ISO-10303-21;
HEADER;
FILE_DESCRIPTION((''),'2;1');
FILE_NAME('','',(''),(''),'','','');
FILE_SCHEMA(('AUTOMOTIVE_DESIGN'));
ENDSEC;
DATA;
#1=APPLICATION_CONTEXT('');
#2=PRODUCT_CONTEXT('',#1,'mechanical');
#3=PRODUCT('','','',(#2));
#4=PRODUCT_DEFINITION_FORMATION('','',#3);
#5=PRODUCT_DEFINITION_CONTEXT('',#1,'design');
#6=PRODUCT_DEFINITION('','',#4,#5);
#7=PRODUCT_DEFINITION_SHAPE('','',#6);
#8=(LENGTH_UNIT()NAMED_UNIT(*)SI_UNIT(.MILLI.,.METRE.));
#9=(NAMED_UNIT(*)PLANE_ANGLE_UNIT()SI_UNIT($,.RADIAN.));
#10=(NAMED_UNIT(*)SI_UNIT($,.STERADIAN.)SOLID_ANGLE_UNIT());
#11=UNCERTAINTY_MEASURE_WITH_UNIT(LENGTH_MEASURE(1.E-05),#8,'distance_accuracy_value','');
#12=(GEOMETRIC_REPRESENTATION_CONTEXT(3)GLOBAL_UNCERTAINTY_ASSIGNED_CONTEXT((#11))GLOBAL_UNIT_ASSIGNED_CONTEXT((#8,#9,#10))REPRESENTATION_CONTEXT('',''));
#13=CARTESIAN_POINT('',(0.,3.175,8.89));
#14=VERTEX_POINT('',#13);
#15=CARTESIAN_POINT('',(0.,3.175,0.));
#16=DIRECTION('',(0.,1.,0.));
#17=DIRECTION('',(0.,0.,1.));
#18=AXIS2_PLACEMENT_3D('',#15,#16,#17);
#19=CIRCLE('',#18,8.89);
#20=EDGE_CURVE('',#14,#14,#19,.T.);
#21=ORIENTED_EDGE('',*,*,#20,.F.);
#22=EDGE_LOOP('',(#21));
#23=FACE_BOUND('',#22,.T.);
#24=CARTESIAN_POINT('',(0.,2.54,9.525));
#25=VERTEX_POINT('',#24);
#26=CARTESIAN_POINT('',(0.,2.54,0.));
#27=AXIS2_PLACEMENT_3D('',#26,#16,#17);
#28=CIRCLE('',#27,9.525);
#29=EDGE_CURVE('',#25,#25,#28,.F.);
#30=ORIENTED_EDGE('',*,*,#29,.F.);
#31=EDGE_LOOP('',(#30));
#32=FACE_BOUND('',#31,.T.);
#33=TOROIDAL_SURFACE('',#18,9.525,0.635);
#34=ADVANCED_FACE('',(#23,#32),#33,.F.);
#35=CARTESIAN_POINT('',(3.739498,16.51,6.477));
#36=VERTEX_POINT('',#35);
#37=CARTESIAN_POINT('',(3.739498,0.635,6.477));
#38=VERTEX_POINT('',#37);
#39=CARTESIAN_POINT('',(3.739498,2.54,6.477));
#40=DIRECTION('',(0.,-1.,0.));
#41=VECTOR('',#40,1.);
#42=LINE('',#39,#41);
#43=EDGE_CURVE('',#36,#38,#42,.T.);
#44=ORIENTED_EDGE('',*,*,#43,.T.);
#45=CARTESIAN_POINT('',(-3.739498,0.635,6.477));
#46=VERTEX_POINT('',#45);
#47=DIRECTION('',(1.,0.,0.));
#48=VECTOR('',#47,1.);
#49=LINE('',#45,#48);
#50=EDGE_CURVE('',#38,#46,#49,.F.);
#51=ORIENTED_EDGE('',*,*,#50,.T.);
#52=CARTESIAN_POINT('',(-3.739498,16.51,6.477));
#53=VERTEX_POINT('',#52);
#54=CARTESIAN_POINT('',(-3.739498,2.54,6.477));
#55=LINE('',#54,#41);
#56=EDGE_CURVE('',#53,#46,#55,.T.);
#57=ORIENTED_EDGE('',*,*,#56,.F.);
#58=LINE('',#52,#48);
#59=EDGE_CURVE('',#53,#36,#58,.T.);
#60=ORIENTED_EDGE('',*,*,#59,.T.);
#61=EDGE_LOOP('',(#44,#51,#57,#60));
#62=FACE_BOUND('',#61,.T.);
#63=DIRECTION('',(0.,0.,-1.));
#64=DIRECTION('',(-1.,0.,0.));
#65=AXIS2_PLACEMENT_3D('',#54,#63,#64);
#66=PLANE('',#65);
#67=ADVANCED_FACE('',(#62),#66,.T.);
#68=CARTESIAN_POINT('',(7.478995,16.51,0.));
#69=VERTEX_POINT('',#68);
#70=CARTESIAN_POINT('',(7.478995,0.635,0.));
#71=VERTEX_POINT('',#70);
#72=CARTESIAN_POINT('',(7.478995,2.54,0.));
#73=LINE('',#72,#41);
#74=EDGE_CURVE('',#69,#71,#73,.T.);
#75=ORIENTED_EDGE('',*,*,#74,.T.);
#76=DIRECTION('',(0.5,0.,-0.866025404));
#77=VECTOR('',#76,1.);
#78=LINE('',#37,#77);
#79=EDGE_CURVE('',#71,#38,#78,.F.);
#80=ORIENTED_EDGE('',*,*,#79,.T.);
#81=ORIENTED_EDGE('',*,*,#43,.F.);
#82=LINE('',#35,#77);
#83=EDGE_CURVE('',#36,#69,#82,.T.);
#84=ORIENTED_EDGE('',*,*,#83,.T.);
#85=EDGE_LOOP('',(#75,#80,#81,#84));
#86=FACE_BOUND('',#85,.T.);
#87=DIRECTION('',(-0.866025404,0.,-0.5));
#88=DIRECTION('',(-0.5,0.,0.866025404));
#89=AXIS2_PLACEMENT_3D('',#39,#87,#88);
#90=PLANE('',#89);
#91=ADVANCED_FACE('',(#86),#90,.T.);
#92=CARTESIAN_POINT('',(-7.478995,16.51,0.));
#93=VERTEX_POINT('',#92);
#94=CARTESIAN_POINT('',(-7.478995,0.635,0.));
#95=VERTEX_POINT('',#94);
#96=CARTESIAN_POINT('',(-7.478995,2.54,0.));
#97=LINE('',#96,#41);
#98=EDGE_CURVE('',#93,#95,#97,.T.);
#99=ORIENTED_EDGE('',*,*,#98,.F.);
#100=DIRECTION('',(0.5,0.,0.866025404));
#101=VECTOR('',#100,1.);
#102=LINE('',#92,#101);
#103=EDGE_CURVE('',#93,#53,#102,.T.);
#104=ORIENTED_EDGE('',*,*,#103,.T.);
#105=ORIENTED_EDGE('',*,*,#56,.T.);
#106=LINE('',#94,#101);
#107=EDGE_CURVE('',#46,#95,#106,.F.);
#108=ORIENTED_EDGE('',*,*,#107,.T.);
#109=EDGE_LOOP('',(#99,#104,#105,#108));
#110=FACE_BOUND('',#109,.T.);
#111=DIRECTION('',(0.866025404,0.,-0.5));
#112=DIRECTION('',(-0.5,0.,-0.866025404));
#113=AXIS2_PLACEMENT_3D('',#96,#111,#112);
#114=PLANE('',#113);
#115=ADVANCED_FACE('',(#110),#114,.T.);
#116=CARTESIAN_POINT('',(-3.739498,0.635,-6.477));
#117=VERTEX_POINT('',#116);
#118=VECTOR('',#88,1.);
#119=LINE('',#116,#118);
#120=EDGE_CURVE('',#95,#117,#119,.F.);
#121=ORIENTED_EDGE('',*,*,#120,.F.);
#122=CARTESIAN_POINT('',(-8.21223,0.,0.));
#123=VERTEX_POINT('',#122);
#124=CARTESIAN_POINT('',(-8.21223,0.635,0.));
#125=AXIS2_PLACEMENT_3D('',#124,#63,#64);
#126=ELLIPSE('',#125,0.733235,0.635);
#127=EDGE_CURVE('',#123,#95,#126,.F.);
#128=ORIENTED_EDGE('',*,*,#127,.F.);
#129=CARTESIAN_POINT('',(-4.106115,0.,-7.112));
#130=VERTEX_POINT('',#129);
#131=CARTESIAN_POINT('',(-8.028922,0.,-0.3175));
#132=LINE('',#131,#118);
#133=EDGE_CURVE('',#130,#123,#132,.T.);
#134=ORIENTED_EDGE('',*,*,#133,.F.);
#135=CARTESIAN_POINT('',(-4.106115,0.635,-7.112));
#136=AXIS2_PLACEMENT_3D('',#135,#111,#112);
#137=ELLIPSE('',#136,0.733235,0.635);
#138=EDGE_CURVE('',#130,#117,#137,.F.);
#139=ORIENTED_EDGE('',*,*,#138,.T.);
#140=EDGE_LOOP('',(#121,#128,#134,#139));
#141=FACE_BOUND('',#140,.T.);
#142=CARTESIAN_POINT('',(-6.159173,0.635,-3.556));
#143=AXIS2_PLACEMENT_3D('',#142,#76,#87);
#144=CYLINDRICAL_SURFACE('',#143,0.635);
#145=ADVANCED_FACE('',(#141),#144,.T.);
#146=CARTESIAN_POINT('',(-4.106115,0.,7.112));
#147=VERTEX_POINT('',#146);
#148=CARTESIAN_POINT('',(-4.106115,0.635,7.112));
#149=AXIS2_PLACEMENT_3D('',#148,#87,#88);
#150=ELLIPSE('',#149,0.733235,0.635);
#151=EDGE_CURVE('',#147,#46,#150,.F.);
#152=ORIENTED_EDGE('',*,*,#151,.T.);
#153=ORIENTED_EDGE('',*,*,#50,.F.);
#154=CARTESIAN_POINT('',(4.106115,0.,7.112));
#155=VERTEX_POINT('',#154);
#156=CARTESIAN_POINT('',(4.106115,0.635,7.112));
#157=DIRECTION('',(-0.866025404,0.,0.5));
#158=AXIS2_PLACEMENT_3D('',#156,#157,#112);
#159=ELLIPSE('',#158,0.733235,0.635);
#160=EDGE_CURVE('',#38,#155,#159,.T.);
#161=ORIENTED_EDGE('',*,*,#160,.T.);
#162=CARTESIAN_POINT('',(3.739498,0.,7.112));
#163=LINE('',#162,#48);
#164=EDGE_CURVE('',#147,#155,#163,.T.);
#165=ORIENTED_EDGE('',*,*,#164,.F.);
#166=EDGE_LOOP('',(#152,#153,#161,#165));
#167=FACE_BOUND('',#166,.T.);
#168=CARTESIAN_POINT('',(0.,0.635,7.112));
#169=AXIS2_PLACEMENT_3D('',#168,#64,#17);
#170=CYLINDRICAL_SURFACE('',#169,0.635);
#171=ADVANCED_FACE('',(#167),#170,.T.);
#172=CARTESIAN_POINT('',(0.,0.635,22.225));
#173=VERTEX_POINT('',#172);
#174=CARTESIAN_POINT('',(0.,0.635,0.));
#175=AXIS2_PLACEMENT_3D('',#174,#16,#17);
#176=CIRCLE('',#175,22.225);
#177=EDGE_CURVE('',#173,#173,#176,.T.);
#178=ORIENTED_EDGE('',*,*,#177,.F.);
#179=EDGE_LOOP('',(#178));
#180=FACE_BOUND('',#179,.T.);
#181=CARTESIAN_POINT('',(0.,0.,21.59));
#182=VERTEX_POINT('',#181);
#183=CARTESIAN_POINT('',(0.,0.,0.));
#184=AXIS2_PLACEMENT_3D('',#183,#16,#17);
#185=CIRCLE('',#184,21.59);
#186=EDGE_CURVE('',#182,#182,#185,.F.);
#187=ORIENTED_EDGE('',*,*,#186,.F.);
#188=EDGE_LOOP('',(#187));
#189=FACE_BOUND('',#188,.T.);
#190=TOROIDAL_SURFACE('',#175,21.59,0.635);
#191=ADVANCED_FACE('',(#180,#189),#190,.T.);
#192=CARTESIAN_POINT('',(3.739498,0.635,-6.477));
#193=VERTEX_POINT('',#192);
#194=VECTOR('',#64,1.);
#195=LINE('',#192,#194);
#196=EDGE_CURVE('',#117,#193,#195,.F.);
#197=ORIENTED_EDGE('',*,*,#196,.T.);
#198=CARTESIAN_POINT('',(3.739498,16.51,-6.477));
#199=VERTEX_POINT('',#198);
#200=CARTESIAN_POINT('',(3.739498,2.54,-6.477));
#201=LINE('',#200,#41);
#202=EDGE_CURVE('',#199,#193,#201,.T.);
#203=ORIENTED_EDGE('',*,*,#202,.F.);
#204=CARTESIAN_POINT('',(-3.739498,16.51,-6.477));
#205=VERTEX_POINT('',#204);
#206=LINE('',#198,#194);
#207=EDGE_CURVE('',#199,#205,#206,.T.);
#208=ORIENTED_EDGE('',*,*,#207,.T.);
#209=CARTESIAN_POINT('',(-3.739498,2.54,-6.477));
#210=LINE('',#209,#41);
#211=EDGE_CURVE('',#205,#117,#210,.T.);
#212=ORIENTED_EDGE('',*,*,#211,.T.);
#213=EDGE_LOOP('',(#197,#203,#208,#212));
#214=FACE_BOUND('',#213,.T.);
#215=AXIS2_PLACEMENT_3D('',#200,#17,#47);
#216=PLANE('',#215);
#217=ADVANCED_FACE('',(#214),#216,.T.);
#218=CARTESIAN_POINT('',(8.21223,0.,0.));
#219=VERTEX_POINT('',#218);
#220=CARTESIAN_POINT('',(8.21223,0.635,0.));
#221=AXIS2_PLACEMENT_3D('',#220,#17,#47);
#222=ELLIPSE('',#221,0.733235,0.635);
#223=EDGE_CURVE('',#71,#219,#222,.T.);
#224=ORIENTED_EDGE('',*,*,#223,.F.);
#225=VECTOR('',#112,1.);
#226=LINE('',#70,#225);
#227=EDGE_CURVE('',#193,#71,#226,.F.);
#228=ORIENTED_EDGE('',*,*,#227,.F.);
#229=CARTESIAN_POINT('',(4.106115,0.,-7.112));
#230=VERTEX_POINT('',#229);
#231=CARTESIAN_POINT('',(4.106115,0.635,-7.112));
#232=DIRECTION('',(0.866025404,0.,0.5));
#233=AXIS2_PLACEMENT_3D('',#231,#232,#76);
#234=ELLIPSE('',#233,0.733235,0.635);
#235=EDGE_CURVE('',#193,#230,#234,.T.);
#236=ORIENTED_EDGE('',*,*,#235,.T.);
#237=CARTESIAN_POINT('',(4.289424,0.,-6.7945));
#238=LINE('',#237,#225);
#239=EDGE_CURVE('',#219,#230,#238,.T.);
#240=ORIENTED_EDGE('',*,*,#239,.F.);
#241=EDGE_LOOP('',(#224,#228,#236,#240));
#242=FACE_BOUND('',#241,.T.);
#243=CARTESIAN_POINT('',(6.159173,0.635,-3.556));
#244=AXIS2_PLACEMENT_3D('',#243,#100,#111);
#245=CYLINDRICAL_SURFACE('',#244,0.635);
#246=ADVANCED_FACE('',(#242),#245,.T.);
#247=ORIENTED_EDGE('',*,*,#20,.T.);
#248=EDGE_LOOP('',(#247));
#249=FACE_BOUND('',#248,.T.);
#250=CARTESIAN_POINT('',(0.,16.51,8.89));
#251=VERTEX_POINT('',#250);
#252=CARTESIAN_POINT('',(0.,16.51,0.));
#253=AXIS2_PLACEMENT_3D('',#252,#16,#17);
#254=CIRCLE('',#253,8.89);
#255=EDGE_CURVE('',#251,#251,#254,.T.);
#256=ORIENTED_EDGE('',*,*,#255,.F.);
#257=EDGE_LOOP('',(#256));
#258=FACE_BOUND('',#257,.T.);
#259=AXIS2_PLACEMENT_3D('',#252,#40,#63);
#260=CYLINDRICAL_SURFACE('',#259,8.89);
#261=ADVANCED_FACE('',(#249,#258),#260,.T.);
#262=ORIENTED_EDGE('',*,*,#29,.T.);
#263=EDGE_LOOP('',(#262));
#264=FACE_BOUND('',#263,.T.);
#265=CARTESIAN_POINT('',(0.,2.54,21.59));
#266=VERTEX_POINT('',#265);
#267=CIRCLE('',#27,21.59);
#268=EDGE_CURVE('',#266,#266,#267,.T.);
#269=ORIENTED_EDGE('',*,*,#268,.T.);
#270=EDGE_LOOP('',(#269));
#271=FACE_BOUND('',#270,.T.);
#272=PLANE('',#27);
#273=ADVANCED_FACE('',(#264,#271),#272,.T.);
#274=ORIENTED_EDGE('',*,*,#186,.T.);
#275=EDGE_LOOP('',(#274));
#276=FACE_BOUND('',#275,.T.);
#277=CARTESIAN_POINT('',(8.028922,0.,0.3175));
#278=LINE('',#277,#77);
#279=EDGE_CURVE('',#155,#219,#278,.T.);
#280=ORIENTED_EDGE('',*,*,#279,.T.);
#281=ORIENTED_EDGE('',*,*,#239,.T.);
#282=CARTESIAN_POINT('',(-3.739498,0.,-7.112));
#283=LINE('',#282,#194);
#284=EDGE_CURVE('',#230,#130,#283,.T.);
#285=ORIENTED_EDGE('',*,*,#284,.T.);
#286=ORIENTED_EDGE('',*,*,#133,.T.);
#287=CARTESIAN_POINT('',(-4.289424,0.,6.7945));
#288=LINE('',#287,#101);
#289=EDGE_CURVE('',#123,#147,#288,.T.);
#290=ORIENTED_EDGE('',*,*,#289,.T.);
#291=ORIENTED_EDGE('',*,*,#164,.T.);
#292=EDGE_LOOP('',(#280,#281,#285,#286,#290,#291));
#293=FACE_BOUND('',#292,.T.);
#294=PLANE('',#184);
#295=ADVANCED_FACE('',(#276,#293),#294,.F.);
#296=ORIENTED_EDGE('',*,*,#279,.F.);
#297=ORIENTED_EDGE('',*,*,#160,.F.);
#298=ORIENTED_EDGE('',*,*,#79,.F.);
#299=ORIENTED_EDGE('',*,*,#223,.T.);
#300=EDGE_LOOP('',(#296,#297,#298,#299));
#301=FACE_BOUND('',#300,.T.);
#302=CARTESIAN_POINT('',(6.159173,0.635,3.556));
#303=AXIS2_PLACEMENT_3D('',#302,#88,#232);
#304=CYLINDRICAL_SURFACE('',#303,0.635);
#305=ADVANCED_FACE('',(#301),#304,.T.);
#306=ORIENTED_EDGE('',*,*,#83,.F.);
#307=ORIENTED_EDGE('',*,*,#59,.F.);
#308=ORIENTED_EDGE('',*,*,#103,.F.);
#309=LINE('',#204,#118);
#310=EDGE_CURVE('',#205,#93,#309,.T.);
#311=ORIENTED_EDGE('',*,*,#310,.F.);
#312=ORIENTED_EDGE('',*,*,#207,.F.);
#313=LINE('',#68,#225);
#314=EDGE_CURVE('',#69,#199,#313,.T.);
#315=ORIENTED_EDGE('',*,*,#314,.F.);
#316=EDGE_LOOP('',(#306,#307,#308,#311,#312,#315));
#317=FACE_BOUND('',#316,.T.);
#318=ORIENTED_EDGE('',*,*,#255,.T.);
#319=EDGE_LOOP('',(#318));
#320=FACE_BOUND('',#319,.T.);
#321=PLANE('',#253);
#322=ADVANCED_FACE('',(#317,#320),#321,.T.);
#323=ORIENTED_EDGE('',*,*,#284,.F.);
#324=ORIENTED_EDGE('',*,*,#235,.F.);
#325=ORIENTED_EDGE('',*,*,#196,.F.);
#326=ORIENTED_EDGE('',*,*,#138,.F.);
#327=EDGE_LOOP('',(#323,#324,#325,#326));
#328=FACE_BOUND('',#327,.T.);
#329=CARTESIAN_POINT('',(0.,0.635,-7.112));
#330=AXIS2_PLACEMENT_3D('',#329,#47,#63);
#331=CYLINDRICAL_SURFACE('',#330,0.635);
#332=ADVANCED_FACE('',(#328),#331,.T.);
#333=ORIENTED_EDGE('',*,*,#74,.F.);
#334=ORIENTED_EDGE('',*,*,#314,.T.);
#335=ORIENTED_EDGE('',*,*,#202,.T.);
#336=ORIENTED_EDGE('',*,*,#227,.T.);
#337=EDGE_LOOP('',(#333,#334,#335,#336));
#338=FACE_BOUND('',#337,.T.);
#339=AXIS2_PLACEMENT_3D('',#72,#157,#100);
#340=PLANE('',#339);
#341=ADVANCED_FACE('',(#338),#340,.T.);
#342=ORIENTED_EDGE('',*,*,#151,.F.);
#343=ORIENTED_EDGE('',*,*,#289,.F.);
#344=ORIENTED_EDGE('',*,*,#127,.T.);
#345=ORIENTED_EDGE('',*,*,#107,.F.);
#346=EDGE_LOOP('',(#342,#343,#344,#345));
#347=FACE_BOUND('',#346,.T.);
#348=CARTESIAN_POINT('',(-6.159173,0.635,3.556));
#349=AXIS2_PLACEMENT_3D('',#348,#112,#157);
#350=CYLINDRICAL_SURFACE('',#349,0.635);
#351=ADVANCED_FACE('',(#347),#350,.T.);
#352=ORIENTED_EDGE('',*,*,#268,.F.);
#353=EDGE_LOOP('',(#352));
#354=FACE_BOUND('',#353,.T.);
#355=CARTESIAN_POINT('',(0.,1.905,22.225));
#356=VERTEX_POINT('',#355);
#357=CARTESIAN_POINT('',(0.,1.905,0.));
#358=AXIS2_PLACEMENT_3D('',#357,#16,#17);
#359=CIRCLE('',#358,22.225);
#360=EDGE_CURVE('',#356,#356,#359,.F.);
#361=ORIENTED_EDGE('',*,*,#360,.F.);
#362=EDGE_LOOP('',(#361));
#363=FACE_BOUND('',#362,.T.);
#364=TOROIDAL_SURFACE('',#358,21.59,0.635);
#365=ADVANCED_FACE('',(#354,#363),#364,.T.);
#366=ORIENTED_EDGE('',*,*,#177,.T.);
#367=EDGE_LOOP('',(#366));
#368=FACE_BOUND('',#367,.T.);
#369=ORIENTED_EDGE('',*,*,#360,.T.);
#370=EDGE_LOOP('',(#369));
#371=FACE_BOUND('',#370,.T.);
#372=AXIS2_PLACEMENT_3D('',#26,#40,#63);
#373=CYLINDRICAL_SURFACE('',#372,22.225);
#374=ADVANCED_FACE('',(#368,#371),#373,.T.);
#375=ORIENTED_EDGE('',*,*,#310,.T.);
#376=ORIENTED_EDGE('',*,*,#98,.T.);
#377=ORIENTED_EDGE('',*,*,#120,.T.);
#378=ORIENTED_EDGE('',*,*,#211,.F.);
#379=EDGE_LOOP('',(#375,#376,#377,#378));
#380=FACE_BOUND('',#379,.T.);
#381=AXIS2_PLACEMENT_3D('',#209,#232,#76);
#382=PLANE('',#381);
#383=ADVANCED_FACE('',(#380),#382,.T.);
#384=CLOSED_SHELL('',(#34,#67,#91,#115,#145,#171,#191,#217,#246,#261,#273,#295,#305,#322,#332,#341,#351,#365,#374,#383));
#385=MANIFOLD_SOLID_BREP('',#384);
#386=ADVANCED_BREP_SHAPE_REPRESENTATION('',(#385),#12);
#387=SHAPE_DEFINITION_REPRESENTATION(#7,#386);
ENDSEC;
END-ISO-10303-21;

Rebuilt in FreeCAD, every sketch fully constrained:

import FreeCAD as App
import Part
import Sketcher
Q = App.Units.Quantity


def edges_at(feature, points):
    """Names of the edges that pass closest to the given points."""
    edges = feature.Shape.Edges
    near = lambda p: min(range(len(edges)), key=lambda i: edges[i].distToShape(Part.Vertex(*p))[0])
    return sorted({f"Edge{near(p) + 1}" for p in points})


def add_polygon(sketch, points):
    """Adds a closed chain of lines whose ends are joined by coincident constraints."""
    first, n = sketch.GeometryCount, len(points)
    for a, b in zip(points, points[1:] + points[:1]):
        sketch.addGeometry(Part.LineSegment(App.Vector(*a, 0), App.Vector(*b, 0)), False)
    for i in range(n):
        sketch.addConstraint(Sketcher.Constraint("Coincident", first + i, 2, first + (i + 1) % n, 1))

doc = App.newDocument("Part")
body = doc.addObject("PartDesign::Body", "Body")

# Sketch on XZ plane
sketch1 = body.newObject("Sketcher::SketchObject", "Sketch")
sketch1.AttachmentSupport = (doc.getObject("XZ_Plane"), [""])
sketch1.MapMode = "FlatFace"
sketch1.addGeometry(Part.Circle(App.Vector(0, 0, 0), App.Vector(0, 0, 1), 22), False)  # 0
add_polygon(sketch1, [(4, -6), (7, 0), (4, 6), (-4, 6), (-7, 0), (-4, -6)])  # lines 1-6
sketch1.addConstraint([
    Sketcher.Constraint("Horizontal", 3),
    Sketcher.Constraint("Horizontal", 6),
    Sketcher.Constraint("Coincident", 0, 3, -1, 1),
    Sketcher.Constraint("Symmetric", 1, 2, 4, 2, -1, 1),
    Sketcher.Constraint("Symmetric", 2, 2, 5, 2, -1, 1),
    Sketcher.Constraint("PointOnObject", 1, 2, -1),
    Sketcher.Constraint("Parallel", 1, 4),
    Sketcher.Constraint("Vertical", 3, 2, 5, 2),
    Sketcher.Constraint("Diameter", 0, Q("1.75 in")),
    Sketcher.Constraint("Angle", 1, Q("60 deg")),
    Sketcher.Constraint("DistanceY", 5, 2, 3, 2, Q("0.51 in")),
    Sketcher.Constraint("DistanceX", 3, 2, 3, 1, 7.478995),
])
pad1 = body.newObject("PartDesign::Pad", "Pad")
pad1.Profile = sketch1
pad1.Length = Q("0.1 in")
pad1.Reversed = True

# Sketch on XZ plane
sketch2 = body.newObject("Sketcher::SketchObject", "Sketch001")
sketch2.AttachmentSupport = (doc.getObject("XZ_Plane"), [""])
sketch2.MapMode = "FlatFace"
sketch2.AttachmentOffset = App.Placement(App.Vector(0, 0, -0.1 * 25.4), App.Rotation())
sketch2.addGeometry(Part.Circle(App.Vector(0, 0, 0), App.Vector(0, 0, 1), 9), False)  # 0
add_polygon(sketch2, [(-4, -6), (4, -6), (7, 0), (4, 6), (-4, 6), (-7, 0)])  # lines 1-6
sketch2.addConstraint([
    Sketcher.Constraint("Horizontal", 1),
    Sketcher.Constraint("Horizontal", 4),
    Sketcher.Constraint("Coincident", 0, 3, -1, 1),
    Sketcher.Constraint("Symmetric", 1, 2, 4, 2, -1, 1),
    Sketcher.Constraint("Symmetric", 2, 2, 5, 2, -1, 1),
    Sketcher.Constraint("PointOnObject", 2, 2, -1),
    Sketcher.Constraint("Parallel", 3, 6),
    Sketcher.Constraint("Vertical", 1, 2, 3, 2),
    Sketcher.Constraint("Diameter", 0, Q("0.7 in")),
    Sketcher.Constraint("Angle", 2, Q("60 deg")),
    Sketcher.Constraint("DistanceY", 1, 2, 3, 2, Q("0.51 in")),
    Sketcher.Constraint("DistanceX", 1, 1, 1, 2, 7.478995),
])
pad2 = body.newObject("PartDesign::Pad", "Pad001")
pad2.Profile = sketch2
pad2.Length = Q("0.55 in")
pad2.Reversed = True
doc.recompute()

fillet = body.newObject("PartDesign::Fillet", "Fillet")
fillet.Base = (pad2, edges_at(pad2, [
    (0, 0, -6.477),
    (-5.609, 0, -3.239),
    (-5.609, 0, 3.239),
    (0, 0, 6.477),
    (0, 0, -22.225),
    (0, 2.54, -8.89),
    (0, 2.54, -22.225),
    (5.609, 0, 3.239),
    (5.609, 0, -3.239),
]))
fillet.Radius = Q("0.025 in")

doc.recompute()
